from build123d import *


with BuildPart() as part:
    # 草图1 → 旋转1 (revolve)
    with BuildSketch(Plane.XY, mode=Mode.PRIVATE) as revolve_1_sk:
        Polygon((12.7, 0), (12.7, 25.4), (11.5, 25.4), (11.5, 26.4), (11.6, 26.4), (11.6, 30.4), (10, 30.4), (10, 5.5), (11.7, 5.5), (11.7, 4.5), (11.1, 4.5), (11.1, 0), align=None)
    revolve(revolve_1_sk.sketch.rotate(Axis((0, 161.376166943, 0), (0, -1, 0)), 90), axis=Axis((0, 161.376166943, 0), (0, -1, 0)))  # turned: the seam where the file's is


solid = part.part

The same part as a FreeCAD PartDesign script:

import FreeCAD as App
import Part
import Sketcher

V = App.Vector
Q = App.Units.Quantity


def add_polygon(sketch, points):
    """Adds a closed chain of lines whose ends are joined by coincident constraints."""
    first, n = sketch.GeometryCount, len(points)
    for a, b in zip(points, points[1:] + points[:1]):
        sketch.addGeometry(Part.LineSegment(App.Vector(*a, 0), App.Vector(*b, 0)), False)
    for i in range(n):
        sketch.addConstraint(Sketcher.Constraint("Coincident", first + i, 2, first + (i + 1) % n, 1))

doc = App.newDocument("Part")
body = doc.addObject("PartDesign::Body", "Body")

sketch1 = doc.addObject("Sketcher::SketchObject", "Sketch")
body.addObject(sketch1)
sketch1.AttachmentSupport = (doc.XY_Plane, [""])
sketch1.MapMode = "FlatFace"
add_polygon(sketch1, [(12.7, 0), (12.7, 25.4), (11.5, 25.4), (11.5, 26.4), (11.6, 26.4), (11.6, 30.4), (10, 30.4), (10, 5.5), (11.7, 5.5), (11.7, 4.5), (11.1, 4.5), (11.1, 0)])
sketch1.addConstraint(Sketcher.Constraint("Vertical", 0))
sketch1.addConstraint(Sketcher.Constraint("Horizontal", 1))
sketch1.addConstraint(Sketcher.Constraint("Vertical", 2))
sketch1.addConstraint(Sketcher.Constraint("Horizontal", 3))
sketch1.addConstraint(Sketcher.Constraint("Vertical", 4))
sketch1.addConstraint(Sketcher.Constraint("Horizontal", 5))
sketch1.addConstraint(Sketcher.Constraint("Vertical", 6))
sketch1.addConstraint(Sketcher.Constraint("Horizontal", 7))
sketch1.addConstraint(Sketcher.Constraint("Vertical", 8))
sketch1.addConstraint(Sketcher.Constraint("Horizontal", 9))
sketch1.addConstraint(Sketcher.Constraint("Vertical", 10))
sketch1.addConstraint(Sketcher.Constraint("Horizontal", 11))
sketch1.addConstraint(Sketcher.Constraint("PointOnObject", 10, 2, -1))
sketch1.addConstraint(Sketcher.Constraint("Equal", 5, 11))
sketch1.addConstraint(Sketcher.Constraint("Equal", 2, 8))
sketch1.addConstraint(Sketcher.Constraint("DistanceY", 2, 1, 2, 2, Q("1 mm")))
sketch1.addConstraint(Sketcher.Constraint("DistanceY", 4, 1, 4, 2, Q("4 mm")))
sketch1.addConstraint(Sketcher.Constraint("DistanceX", 1, 2, 1, 1, Q("1.2 mm")))
sketch1.addConstraint(Sketcher.Constraint("DistanceX", 3, 1, 3, 2, Q("0.1 mm")))
sketch1.addConstraint(Sketcher.Constraint("DistanceX", 5, 2, 5, 1, Q("1.6 mm")))
sketch1.addConstraint(Sketcher.Constraint("DistanceX", 7, 1, 7, 2, Q("1.7 mm")))
sketch1.addConstraint(Sketcher.Constraint("DistanceY", 0, 1, 0, 2, Q("25.4 mm")))
sketch1.addConstraint(Sketcher.Constraint("DistanceY", 6, 2, 6, 1, Q("24.9 mm")))
sketch1.addConstraint(Sketcher.Constraint("DistanceX", -1, 1, 5, 2, Q("10 mm")))
revolution = doc.addObject("PartDesign::Revolution", "Revolution")
body.addObject(revolution)
revolution.Profile = sketch1
revolution.ReferenceAxis = (sketch1, ["V_Axis"])
revolution.Angle = 360

doc.recompute()
